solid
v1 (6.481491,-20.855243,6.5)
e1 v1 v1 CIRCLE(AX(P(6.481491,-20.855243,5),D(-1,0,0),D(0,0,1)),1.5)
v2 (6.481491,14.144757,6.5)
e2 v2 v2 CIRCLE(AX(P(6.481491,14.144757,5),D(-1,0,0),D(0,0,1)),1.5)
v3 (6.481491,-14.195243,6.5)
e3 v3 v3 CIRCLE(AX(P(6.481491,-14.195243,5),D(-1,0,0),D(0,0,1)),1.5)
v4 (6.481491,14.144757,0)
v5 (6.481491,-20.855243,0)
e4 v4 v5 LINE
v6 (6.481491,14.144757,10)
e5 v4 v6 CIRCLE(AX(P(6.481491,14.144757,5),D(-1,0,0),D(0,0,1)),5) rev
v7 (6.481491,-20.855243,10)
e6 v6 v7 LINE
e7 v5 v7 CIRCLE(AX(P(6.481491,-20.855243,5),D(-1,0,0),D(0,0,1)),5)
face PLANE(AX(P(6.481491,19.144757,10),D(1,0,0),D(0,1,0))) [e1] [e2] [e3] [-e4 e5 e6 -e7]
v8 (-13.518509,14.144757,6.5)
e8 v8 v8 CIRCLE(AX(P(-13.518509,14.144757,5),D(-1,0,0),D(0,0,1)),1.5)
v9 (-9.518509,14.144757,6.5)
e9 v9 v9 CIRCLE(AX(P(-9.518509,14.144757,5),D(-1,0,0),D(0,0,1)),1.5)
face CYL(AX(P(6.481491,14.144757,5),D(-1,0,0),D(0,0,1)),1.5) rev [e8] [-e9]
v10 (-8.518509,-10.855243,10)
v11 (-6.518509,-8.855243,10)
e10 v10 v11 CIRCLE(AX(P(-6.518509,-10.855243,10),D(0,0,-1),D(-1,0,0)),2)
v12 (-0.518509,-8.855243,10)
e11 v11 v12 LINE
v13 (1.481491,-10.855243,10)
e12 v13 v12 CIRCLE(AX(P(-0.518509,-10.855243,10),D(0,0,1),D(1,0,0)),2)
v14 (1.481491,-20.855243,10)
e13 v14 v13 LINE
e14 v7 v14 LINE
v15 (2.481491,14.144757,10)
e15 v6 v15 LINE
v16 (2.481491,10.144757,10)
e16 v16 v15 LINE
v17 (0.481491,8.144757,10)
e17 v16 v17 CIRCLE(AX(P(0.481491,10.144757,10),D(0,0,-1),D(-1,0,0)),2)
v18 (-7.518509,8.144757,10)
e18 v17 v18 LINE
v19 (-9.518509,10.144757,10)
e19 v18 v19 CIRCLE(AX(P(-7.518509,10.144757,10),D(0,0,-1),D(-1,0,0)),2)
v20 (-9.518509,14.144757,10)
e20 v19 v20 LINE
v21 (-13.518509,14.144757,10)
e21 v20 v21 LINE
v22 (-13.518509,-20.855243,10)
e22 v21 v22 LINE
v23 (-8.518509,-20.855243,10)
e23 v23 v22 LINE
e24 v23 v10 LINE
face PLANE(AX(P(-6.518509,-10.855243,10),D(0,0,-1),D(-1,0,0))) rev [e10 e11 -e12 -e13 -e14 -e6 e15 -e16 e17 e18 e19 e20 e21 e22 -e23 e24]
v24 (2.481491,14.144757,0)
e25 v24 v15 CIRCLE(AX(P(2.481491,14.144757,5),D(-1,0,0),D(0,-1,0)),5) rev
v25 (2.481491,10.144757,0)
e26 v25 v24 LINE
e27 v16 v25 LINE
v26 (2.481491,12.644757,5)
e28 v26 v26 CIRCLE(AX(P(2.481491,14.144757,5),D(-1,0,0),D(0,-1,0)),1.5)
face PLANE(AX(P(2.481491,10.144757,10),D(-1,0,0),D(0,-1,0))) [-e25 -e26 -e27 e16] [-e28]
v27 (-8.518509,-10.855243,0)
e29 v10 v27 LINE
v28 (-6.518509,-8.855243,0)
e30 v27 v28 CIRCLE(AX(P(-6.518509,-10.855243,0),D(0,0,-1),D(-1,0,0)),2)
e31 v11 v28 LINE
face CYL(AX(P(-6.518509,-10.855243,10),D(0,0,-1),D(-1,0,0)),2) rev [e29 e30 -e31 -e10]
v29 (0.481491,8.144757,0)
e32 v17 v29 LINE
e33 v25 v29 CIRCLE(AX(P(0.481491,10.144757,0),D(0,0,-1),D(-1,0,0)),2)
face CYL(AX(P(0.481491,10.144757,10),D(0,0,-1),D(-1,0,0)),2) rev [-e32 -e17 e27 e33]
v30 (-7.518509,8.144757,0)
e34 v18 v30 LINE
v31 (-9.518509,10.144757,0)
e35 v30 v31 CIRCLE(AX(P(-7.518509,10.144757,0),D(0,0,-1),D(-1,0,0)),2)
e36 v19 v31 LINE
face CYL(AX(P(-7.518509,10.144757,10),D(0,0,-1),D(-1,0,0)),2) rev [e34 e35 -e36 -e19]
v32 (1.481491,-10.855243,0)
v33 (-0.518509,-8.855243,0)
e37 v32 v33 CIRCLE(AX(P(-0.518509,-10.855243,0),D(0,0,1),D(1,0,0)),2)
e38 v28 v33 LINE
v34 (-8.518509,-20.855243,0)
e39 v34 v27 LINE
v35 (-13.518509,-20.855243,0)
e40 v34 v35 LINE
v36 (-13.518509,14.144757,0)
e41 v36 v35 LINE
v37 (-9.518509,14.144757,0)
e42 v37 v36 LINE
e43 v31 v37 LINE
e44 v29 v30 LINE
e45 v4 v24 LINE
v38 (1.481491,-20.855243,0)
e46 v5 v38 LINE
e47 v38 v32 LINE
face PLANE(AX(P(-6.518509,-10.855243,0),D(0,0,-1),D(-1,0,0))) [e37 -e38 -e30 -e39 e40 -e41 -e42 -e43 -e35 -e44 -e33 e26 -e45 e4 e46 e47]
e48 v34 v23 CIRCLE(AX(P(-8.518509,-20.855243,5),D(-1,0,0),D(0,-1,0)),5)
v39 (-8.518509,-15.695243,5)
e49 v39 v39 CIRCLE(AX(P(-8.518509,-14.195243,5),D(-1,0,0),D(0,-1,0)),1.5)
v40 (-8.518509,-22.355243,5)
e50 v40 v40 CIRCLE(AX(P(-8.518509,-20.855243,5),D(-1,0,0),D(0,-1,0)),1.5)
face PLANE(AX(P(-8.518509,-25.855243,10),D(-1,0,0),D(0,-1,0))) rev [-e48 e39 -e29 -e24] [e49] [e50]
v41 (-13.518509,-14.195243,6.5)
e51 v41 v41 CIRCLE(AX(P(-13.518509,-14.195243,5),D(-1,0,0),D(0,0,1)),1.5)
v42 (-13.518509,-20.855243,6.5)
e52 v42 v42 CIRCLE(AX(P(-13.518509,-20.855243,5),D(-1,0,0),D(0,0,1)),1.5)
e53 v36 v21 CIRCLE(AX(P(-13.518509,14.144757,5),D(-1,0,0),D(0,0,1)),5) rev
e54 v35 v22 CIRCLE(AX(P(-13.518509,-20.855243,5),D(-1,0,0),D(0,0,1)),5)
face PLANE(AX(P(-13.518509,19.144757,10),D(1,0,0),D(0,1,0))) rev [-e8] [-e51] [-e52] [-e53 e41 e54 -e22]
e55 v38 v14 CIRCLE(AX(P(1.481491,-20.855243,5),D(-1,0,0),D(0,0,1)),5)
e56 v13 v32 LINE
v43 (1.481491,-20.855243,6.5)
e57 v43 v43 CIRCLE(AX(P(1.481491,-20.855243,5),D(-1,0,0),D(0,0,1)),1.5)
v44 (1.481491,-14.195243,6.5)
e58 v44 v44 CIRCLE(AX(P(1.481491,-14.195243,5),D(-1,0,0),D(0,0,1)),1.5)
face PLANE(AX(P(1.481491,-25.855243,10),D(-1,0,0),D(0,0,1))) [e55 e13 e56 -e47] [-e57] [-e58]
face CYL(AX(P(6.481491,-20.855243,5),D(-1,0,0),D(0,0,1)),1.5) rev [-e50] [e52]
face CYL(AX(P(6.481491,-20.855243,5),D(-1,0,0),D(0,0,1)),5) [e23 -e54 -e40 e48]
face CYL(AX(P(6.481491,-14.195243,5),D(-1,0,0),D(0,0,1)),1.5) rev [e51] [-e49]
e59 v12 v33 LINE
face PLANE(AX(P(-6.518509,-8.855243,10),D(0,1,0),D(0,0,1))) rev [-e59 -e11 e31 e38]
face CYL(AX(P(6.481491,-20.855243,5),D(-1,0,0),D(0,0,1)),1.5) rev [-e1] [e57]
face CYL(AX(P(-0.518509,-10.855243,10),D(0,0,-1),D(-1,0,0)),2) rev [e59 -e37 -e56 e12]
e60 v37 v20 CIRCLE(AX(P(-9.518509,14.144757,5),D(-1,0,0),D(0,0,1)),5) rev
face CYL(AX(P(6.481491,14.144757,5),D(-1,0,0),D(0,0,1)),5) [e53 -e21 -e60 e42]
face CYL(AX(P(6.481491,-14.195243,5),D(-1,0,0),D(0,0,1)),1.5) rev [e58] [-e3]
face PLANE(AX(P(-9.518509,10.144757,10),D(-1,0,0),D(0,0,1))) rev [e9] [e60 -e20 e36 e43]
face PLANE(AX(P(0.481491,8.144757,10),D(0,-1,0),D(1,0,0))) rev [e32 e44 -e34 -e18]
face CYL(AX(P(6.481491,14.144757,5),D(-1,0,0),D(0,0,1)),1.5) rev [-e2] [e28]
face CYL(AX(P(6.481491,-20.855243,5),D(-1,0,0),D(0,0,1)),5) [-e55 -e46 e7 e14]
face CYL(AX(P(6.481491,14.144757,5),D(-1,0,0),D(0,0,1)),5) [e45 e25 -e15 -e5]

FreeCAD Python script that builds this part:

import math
import FreeCAD as App
import Part
import Sketcher

V = App.Vector

doc = App.newDocument("Part")
body = doc.addObject("PartDesign::Body", "Body")

# Sketch on XY plane
sketch1 = doc.addObject("Sketcher::SketchObject", "Sketch")
body.addObject(sketch1)
sketch1.AttachmentSupport = (doc.XY_Plane, [""])
sketch1.MapMode = "FlatFace"
sketch1.addGeometry([
    Part.LineSegment(V(0.5, 8.1, 0), V(-7.5, 8.1, 0)),  # 0
    Part.ArcOfCircle(Part.Circle(V(-7.5, 10.1, 0), V(0, 0, 1), 2), math.radians(180), math.radians(270)),  # 1
    Part.LineSegment(V(-9.5, 10.1, 0), V(-9.5, 19.1, 0)),  # 2
    Part.LineSegment(V(-9.5, 19.1, 0), V(-13.5, 19.1, 0)),  # 3
    Part.LineSegment(V(-13.5, 19.1, 0), V(-13.5, -25.9, 0)),  # 4
    Part.LineSegment(V(-13.5, -25.9, 0), V(-8.5, -25.9, 0)),  # 5
    Part.LineSegment(V(-8.5, -25.9, 0), V(-8.5, -10.9, 0)),  # 6
    Part.ArcOfCircle(Part.Circle(V(-6.5, -10.9, 0), V(0, 0, 1), 2), math.radians(90), math.radians(180)),  # 7
    Part.LineSegment(V(-6.5, -8.9, 0), V(-0.5, -8.9, 0)),  # 8
    Part.ArcOfCircle(Part.Circle(V(-0.5, -10.9, 0), V(0, 0, 1), 2), math.radians(0), math.radians(90)),  # 9
    Part.LineSegment(V(1.5, -10.9, 0), V(1.5, -25.9, 0)),  # 10
    Part.LineSegment(V(1.5, -25.9, 0), V(6.5, -25.9, 0)),  # 11
    Part.LineSegment(V(6.5, -25.9, 0), V(6.5, 19.1, 0)),  # 12
    Part.LineSegment(V(6.5, 19.1, 0), V(2.5, 19.1, 0)),  # 13
    Part.LineSegment(V(2.5, 19.1, 0), V(2.5, 10.1, 0)),  # 14
    Part.ArcOfCircle(Part.Circle(V(0.5, 10.1, 0), V(0, 0, 1), 2), math.radians(-90), math.radians(0)),  # 15
], False)
sketch1.addConstraint([
    Sketcher.Constraint("Tangent", 0, 2, 1, 2),
    Sketcher.Constraint("Tangent", 1, 1, 2, 1),
    Sketcher.Constraint("Coincident", 2, 2, 3, 1),
    Sketcher.Constraint("Coincident", 3, 2, 4, 1),
    Sketcher.Constraint("Coincident", 4, 2, 5, 1),
    Sketcher.Constraint("Coincident", 5, 2, 6, 1),
    Sketcher.Constraint("Tangent", 6, 2, 7, 2),
    Sketcher.Constraint("Tangent", 7, 1, 8, 1),
    Sketcher.Constraint("Tangent", 8, 2, 9, 2),
    Sketcher.Constraint("Tangent", 9, 1, 10, 1),
    Sketcher.Constraint("Coincident", 10, 2, 11, 1),
    Sketcher.Constraint("Coincident", 11, 2, 12, 1),
    Sketcher.Constraint("Coincident", 12, 2, 13, 1),
    Sketcher.Constraint("Coincident", 13, 2, 14, 1),
    Sketcher.Constraint("Tangent", 14, 2, 15, 2),
    Sketcher.Constraint("Tangent", 15, 1, 0, 1),
    Sketcher.Constraint("Horizontal", 0),
    Sketcher.Constraint("Vertical", 2),
    Sketcher.Constraint("Horizontal", 3),
    Sketcher.Constraint("Vertical", 4),
    Sketcher.Constraint("Horizontal", 5),
    Sketcher.Constraint("Vertical", 6),
    Sketcher.Constraint("Horizontal", 8),
    Sketcher.Constraint("Vertical", 10),
    Sketcher.Constraint("Horizontal", 11),
    Sketcher.Constraint("Vertical", 12),
    Sketcher.Constraint("Horizontal", 13),
    Sketcher.Constraint("Vertical", 14),
    Sketcher.Constraint("Equal", 1, 7),
    Sketcher.Constraint("Equal", 7, 9),
    Sketcher.Constraint("Equal", 9, 15),
    Sketcher.Constraint("Horizontal", 5, 2, 10, 2),
    Sketcher.Constraint("Horizontal", 3, 2, 12, 2),
    Sketcher.Constraint("Equal", 5, 11),
    Sketcher.Constraint("Equal", 3, 13),
    Sketcher.Constraint("Radius", 1, 2.0),
    Sketcher.Constraint("DistanceX", 0, 2, 0, 1, 8.0),
    Sketcher.Constraint("DistanceX", 3, 2, 3, 1, 4.0),
    Sketcher.Constraint("DistanceX", 5, 1, 5, 2, 5.0),
    Sketcher.Constraint("DistanceY", 2, 1, 2, 2, 9.0),
    Sketcher.Constraint("DistanceY", 4, 2, 4, 1, 45.0),
    Sketcher.Constraint("DistanceY", 6, 1, 6, 2, 15.0),
    Sketcher.Constraint("DistanceX", 1, 3, -1, 1, 7.518509),
    Sketcher.Constraint("DistanceY", -1, 1, 1, 3, 10.144757),
])
pad1 = doc.addObject("PartDesign::Pad", "Pad")
body.addObject(pad1)
pad1.Profile = sketch1
pad1.Length = 10

# Sketch on YZ plane
sketch2 = doc.addObject("Sketcher::SketchObject", "Sketch001")
body.addObject(sketch2)
sketch2.AttachmentSupport = (doc.YZ_Plane, [""])
sketch2.MapMode = "FlatFace"
sketch2.AttachmentOffset = App.Placement(V(0, 0, -13.518509), App.Rotation())
sketch2.addGeometry([
    Part.ArcOfCircle(Part.Circle(V(-20.9, 5, 0), V(0, 0, 1), 5), math.radians(90), math.radians(180)),  # 0
    Part.LineSegment(V(-25.9, 5, 0), V(-25.9, 10, 0)),  # 1
    Part.LineSegment(V(-25.9, 10, 0), V(-20.9, 10, 0)),  # 2
    Part.ArcOfCircle(Part.Circle(V(-20.9, 5, 0), V(0, 0, 1), 5), math.radians(-180), math.radians(-90)),  # 3
    Part.LineSegment(V(-20.9, 0, 0), V(-25.9, 0, 0)),  # 4
    Part.LineSegment(V(-25.9, 0, 0), V(-25.9, 5, 0)),  # 5
    Part.Circle(V(-20.9, 5, 0), V(0, 0, 1), 1.5),  # 6
    Part.LineSegment(V(19.1, 10, 0), V(19.1, 5, 0)),  # 7
    Part.ArcOfCircle(Part.Circle(V(14.1, 5, 0), V(0, 0, 1), 5), math.radians(0), math.radians(90)),  # 8
    Part.LineSegment(V(14.1, 10, 0), V(19.1, 10, 0)),  # 9
    Part.LineSegment(V(19.1, 0, 0), V(14.1, 0, 0)),  # 10
    Part.ArcOfCircle(Part.Circle(V(14.1, 5, 0), V(0, 0, 1), 5), math.radians(-90), math.radians(0)),  # 11
    Part.LineSegment(V(19.1, 5, 0), V(19.1, 0, 0)),  # 12
    Part.Circle(V(14.1, 5, 0), V(0, 0, 1), 1.5),  # 13
    Part.Circle(V(-14.2, 5, 0), V(0, 0, 1), 1.5),  # 14
], False)
sketch2.addConstraint([
    Sketcher.Constraint("Tangent", 0, 2, 1, 1),
    Sketcher.Constraint("Coincident", 1, 2, 2, 1),
    Sketcher.Constraint("Tangent", 2, 2, 0, 1),
    Sketcher.Constraint("Tangent", 3, 2, 4, 1),
    Sketcher.Constraint("Coincident", 4, 2, 5, 1),
    Sketcher.Constraint("Tangent", 5, 2, 3, 1),
    Sketcher.Constraint("Tangent", 7, 2, 8, 1),
    Sketcher.Constraint("Tangent", 8, 2, 9, 1),
    Sketcher.Constraint("Coincident", 9, 2, 7, 1),
    Sketcher.Constraint("Tangent", 10, 2, 11, 1),
    Sketcher.Constraint("Tangent", 11, 2, 12, 1),
    Sketcher.Constraint("Coincident", 12, 2, 10, 1),
    Sketcher.Constraint("Vertical", 1),
    Sketcher.Constraint("Horizontal", 2),
    Sketcher.Constraint("Horizontal", 4),
    Sketcher.Constraint("Vertical", 5),
    Sketcher.Constraint("Vertical", 7),
    Sketcher.Constraint("Horizontal", 9),
    Sketcher.Constraint("Horizontal", 10),
    Sketcher.Constraint("Vertical", 12),
    Sketcher.Constraint("Coincident", 3, 3, 0, 3),
    Sketcher.Constraint("Coincident", 6, 3, 0, 3),
    Sketcher.Constraint("Coincident", 11, 3, 8, 3),
    Sketcher.Constraint("Coincident", 13, 3, 8, 3),
    Sketcher.Constraint("Equal", 0, 3),
    Sketcher.Constraint("Equal", 3, 8),
    Sketcher.Constraint("Equal", 8, 11),
    Sketcher.Constraint("Equal", 6, 13),
    Sketcher.Constraint("Equal", 13, 14),
    Sketcher.Constraint("PointOnObject", 3, 2, -1),
    Sketcher.Constraint("PointOnObject", 10, 2, -1),
    Sketcher.Constraint("Horizontal", 13, 3, 14, 3),
    Sketcher.Constraint("Diameter", 6, 3.0),
    Sketcher.Constraint("Radius", 0, 5.0),
    Sketcher.Constraint("DistanceX", 0, 3, 8, 3, 35.0),
    Sketcher.Constraint("DistanceX", 0, 3, 14, 3, 6.66),
    Sketcher.Constraint("DistanceX", 0, 3, -1, 1, 20.855243),
])
pocket1 = doc.addObject("PartDesign::Pocket", "Pocket")
body.addObject(pocket1)
pocket1.Profile = sketch2
pocket1.Type = "ThroughAll"
pocket1.Reversed = True

doc.recompute()
